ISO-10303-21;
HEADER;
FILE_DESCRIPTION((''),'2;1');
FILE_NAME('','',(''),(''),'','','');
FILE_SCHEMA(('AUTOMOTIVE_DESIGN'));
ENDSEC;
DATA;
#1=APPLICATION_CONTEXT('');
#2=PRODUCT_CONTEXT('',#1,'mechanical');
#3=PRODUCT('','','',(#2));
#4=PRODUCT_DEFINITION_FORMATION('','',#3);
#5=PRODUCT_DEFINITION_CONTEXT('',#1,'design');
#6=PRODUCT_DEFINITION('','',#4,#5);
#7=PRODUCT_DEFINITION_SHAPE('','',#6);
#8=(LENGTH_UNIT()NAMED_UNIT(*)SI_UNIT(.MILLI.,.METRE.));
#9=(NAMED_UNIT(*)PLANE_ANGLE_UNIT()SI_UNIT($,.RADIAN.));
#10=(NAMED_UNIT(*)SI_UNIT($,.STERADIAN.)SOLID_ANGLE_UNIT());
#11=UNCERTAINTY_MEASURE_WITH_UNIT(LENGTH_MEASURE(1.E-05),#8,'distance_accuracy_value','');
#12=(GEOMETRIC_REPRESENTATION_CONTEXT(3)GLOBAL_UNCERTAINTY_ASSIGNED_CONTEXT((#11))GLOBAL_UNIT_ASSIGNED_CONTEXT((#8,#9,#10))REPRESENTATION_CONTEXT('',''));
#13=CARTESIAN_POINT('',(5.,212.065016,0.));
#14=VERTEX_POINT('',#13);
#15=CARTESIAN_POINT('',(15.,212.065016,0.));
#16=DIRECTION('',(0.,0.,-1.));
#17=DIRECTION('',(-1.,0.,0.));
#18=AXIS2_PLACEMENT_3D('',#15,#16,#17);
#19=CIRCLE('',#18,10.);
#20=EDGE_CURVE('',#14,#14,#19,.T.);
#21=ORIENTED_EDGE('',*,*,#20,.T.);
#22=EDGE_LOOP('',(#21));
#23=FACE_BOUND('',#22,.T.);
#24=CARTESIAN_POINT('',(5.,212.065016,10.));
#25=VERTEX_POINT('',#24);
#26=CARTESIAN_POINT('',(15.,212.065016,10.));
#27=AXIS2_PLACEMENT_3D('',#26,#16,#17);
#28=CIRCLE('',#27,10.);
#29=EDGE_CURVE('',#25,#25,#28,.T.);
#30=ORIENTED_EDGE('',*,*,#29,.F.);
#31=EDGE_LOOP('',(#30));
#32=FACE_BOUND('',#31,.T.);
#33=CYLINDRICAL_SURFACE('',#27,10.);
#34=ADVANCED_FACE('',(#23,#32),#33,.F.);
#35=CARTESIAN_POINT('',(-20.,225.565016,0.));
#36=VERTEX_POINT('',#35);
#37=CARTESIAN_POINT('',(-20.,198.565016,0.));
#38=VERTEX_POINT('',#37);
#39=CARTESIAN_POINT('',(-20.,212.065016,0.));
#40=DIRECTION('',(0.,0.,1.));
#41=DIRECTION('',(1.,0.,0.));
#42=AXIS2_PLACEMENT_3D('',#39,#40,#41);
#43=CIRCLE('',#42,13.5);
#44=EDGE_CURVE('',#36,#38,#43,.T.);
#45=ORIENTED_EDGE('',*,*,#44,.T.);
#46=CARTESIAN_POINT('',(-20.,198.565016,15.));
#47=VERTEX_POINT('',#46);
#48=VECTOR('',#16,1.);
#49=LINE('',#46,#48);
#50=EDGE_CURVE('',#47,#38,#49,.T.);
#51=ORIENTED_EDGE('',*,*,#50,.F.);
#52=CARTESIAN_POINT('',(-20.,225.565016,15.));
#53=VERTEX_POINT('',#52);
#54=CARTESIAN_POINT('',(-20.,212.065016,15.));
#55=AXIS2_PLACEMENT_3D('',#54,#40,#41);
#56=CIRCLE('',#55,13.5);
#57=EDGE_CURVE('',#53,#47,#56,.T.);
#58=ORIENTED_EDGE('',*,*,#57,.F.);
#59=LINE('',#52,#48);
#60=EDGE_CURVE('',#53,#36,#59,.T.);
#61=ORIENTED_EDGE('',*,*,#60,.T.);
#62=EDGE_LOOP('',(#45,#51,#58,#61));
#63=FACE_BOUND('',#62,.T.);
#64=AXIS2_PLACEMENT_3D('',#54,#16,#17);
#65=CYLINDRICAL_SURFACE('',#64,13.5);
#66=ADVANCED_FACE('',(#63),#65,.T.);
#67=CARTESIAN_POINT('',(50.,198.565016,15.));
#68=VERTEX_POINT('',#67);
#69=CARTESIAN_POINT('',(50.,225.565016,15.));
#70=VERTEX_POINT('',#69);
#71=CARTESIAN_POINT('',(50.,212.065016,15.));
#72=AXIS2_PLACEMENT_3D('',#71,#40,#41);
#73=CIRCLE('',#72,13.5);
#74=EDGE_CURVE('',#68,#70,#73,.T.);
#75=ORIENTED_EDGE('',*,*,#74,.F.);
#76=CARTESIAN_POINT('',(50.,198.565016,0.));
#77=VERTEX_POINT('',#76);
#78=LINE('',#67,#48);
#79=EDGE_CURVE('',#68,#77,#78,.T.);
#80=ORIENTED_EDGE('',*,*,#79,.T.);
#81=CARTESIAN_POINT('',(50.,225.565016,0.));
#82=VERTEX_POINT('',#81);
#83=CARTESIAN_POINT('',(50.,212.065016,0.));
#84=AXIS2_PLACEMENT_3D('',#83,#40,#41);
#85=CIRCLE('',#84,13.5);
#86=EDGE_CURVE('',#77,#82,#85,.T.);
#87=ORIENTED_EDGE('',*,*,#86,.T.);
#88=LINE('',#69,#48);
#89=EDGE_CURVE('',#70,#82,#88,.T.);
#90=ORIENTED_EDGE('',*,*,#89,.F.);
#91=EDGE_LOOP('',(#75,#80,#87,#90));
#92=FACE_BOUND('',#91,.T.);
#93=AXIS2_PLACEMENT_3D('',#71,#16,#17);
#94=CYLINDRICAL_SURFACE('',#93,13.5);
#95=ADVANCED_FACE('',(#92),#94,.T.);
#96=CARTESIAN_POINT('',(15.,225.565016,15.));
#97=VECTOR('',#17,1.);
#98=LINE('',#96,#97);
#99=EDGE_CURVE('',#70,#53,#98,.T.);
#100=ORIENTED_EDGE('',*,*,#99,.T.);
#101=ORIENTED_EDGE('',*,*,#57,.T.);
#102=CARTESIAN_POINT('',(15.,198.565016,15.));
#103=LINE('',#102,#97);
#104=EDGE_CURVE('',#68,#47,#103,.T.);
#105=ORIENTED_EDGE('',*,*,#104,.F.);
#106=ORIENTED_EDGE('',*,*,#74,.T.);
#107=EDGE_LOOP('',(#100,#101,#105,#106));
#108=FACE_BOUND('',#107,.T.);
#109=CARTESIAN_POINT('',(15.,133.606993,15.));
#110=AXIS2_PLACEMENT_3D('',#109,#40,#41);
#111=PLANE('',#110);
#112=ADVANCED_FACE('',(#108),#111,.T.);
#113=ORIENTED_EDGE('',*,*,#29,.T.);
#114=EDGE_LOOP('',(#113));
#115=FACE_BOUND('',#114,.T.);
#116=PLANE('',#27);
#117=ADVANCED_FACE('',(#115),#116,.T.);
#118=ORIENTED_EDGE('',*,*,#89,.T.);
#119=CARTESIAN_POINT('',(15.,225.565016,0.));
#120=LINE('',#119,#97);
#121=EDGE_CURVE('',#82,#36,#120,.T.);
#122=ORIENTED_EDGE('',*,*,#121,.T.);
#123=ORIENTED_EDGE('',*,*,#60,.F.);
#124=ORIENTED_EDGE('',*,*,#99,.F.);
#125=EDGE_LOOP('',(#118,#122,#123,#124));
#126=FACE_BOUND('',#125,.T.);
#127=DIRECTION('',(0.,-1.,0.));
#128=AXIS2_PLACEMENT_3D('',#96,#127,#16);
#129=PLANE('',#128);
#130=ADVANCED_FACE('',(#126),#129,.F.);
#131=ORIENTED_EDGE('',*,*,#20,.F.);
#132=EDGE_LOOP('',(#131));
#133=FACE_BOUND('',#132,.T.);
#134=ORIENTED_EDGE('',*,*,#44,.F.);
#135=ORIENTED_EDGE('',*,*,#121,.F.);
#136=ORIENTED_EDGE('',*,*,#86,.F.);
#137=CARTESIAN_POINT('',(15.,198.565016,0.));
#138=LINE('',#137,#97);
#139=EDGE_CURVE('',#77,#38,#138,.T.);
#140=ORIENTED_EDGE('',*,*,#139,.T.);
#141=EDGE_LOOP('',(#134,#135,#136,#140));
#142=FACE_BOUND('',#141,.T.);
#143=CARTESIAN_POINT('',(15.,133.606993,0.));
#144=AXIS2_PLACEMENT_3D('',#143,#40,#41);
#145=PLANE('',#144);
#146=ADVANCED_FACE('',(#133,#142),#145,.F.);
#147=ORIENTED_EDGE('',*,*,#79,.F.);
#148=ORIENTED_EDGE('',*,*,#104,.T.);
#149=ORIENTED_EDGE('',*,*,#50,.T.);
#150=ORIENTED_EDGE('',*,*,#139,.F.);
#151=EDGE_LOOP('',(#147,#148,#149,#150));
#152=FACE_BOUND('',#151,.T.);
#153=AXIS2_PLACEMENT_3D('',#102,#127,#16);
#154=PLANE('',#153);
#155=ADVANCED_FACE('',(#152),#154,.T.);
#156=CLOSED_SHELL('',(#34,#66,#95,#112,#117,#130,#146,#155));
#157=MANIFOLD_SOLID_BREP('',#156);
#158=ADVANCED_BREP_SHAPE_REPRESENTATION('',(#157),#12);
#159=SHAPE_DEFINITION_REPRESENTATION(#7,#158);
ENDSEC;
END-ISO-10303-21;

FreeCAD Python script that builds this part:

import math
import FreeCAD as App
import Part
import Sketcher
from FreeCAD import Vector
Q = App.Units.Quantity

doc = App.newDocument("Part")
body = doc.addObject("PartDesign::Body", "Body")

# Sketch on XY plane
sketch1 = doc.addObject("Sketcher::SketchObject", "Sketch")
body.addObject(sketch1)
sketch1.AttachmentSupport = (doc.XY_Plane, [""])
sketch1.MapMode = "FlatFace"
sketch1.addGeometry(Part.LineSegment(Vector(-20, 199, 0), Vector(50, 199, 0)), False)
sketch1.addGeometry(Part.ArcOfCircle(Part.Circle(Vector(50, 212, 0), Vector(0, 0, 1), 14), math.radians(-90), math.radians(90)), False)
sketch1.addGeometry(Part.LineSegment(Vector(50, 226, 0), Vector(-20, 226, 0)), False)
sketch1.addGeometry(Part.ArcOfCircle(Part.Circle(Vector(-20, 212, 0), Vector(0, 0, 1), 14), math.radians(90), math.radians(270)), False)
sketch1.addConstraint(Sketcher.Constraint("Tangent", 0, 2, 1, 1))
sketch1.addConstraint(Sketcher.Constraint("Tangent", 1, 2, 2, 1))
sketch1.addConstraint(Sketcher.Constraint("Tangent", 2, 2, 3, 1))
sketch1.addConstraint(Sketcher.Constraint("Tangent", 3, 2, 0, 1))
sketch1.addConstraint(Sketcher.Constraint("Horizontal", 0))
sketch1.addConstraint(Sketcher.Constraint("Horizontal", 2))
sketch1.addConstraint(Sketcher.Constraint("Radius", 1, Q("13.5 mm")))
sketch1.addConstraint(Sketcher.Constraint("DistanceX", 0, 1, 0, 2, Q("70 mm")))
sketch1.addConstraint(Sketcher.Constraint("DistanceX", -1, 1, 1, 3, Q("50 mm")))
sketch1.addConstraint(Sketcher.Constraint("DistanceY", -1, 1, 1, 3, Q("212.065016 mm")))
pad1 = doc.addObject("PartDesign::Pad", "Pad")
body.addObject(pad1)
pad1.Profile = sketch1
pad1.Length = 15

# Sketch on XY plane
sketch2 = doc.addObject("Sketcher::SketchObject", "Sketch001")
body.addObject(sketch2)
sketch2.AttachmentSupport = (doc.XY_Plane, [""])
sketch2.MapMode = "FlatFace"
sketch2.addGeometry(Part.Circle(Vector(15, 212, 0), Vector(0, 0, 1), 10), False)
sketch2.addConstraint(Sketcher.Constraint("Diameter", 0, Q("20 mm")))
sketch2.addConstraint(Sketcher.Constraint("DistanceX", -1, 1, 0, 3, Q("15 mm")))
sketch2.addConstraint(Sketcher.Constraint("DistanceY", -1, 1, 0, 3, Q("212.065016 mm")))
pocket1 = doc.addObject("PartDesign::Pocket", "Pocket")
body.addObject(pocket1)
pocket1.Profile = sketch2
pocket1.Length = 10
pocket1.Reversed = True

doc.recompute()
